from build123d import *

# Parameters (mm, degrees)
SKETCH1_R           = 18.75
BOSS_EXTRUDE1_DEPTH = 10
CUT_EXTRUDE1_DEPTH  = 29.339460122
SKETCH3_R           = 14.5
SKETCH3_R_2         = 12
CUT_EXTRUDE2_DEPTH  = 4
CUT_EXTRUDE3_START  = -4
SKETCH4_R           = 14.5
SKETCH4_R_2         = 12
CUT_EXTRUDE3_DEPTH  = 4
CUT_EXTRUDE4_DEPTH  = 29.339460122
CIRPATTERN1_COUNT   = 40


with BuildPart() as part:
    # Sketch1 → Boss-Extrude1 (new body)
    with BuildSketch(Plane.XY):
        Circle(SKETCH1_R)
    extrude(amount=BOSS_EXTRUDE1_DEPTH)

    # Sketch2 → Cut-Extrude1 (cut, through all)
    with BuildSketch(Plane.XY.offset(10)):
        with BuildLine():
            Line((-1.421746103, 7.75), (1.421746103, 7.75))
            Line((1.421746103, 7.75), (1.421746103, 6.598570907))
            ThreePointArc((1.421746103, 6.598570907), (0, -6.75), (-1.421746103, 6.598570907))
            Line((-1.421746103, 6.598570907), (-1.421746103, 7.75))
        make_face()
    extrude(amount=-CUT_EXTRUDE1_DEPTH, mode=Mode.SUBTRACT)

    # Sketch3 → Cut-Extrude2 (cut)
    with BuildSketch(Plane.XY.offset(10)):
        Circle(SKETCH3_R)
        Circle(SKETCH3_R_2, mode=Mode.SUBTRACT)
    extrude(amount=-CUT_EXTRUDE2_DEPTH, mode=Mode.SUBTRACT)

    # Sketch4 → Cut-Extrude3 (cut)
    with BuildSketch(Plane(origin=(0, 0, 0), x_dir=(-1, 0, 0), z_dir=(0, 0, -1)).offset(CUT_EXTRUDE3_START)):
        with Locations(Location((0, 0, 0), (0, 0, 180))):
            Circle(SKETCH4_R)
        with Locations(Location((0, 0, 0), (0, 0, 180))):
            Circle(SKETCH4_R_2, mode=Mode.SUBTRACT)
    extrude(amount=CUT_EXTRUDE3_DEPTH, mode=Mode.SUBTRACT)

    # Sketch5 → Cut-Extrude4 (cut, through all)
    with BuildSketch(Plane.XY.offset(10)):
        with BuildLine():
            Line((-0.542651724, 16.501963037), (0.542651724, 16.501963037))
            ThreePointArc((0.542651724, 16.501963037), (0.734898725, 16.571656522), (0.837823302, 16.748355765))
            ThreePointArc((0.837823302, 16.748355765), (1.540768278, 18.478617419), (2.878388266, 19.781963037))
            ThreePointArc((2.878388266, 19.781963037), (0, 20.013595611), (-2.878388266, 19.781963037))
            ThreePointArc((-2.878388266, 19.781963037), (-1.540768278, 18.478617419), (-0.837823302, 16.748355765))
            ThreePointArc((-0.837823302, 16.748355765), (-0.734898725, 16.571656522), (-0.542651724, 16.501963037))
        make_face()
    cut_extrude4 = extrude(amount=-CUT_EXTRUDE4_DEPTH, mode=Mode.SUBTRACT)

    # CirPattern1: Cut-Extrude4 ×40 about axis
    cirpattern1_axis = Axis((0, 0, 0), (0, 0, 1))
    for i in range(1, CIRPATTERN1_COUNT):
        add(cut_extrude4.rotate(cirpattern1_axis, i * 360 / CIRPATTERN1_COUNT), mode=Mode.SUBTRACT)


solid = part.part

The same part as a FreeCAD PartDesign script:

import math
import FreeCAD as App
import Part
import Sketcher
Q = App.Units.Quantity

doc = App.newDocument("Part")
body = doc.addObject("PartDesign::Body", "Body")

sketch1 = doc.addObject("Sketcher::SketchObject", "Sketch")
body.addObject(sketch1)
sketch1.AttachmentSupport = (doc.XY_Plane, [""])
sketch1.MapMode = "FlatFace"
sketch1.addGeometry(Part.Circle(App.Vector(0, 0, 0), App.Vector(0, 0, 1), 19), False)
sketch1.addConstraint(Sketcher.Constraint("Coincident", 0, 3, -1, 1))
sketch1.addConstraint(Sketcher.Constraint("Diameter", 0, Q("37.5 mm")))
pad1 = doc.addObject("PartDesign::Pad", "Pad")
body.addObject(pad1)
pad1.Profile = sketch1
pad1.Length = 10

sketch2 = doc.addObject("Sketcher::SketchObject", "Sketch001")
body.addObject(sketch2)
sketch2.AttachmentSupport = (doc.XY_Plane, [""])
sketch2.MapMode = "FlatFace"
sketch2.AttachmentOffset = App.Placement(App.Vector(0, 0, 10), App.Rotation())
sketch2.addGeometry(Part.LineSegment(App.Vector(1.4, 7.8, 0), App.Vector(-1.4, 7.8, 0)), False)
sketch2.addGeometry(Part.LineSegment(App.Vector(-1.4, 7.8, 0), App.Vector(-1.4, 6.6, 0)), False)
sketch2.addGeometry(Part.ArcOfCircle(Part.Circle(App.Vector(0, 0, 0), App.Vector(0, 0, 1), 6.8), math.radians(102), math.radians(438)), False)
sketch2.addGeometry(Part.LineSegment(App.Vector(1.4, 6.6, 0), App.Vector(1.4, 7.8, 0)), False)
sketch2.addConstraint(Sketcher.Constraint("Coincident", 0, 2, 1, 1))
sketch2.addConstraint(Sketcher.Constraint("Coincident", 1, 2, 2, 1))
sketch2.addConstraint(Sketcher.Constraint("Coincident", 2, 2, 3, 1))
sketch2.addConstraint(Sketcher.Constraint("Coincident", 3, 2, 0, 1))
sketch2.addConstraint(Sketcher.Constraint("Horizontal", 0))
sketch2.addConstraint(Sketcher.Constraint("Vertical", 1))
sketch2.addConstraint(Sketcher.Constraint("Vertical", 3))
sketch2.addConstraint(Sketcher.Constraint("Coincident", 2, 3, -1, 1))
sketch2.addConstraint(Sketcher.Constraint("Horizontal", 1, 2, 2, 2))
sketch2.addConstraint(Sketcher.Constraint("Radius", 2, Q("6.75 mm")))
sketch2.addConstraint(Sketcher.Constraint("DistanceY", -1, 1, 0, 2, Q("7.75 mm")))
sketch2.addConstraint(Sketcher.Constraint("DistanceY", 1, 2, 1, 1, Q("1.151429 mm")))
pocket1 = doc.addObject("PartDesign::Pocket", "Pocket")
body.addObject(pocket1)
pocket1.Profile = sketch2
pocket1.Type = "ThroughAll"

sketch3 = doc.addObject("Sketcher::SketchObject", "Sketch002")
body.addObject(sketch3)
sketch3.AttachmentSupport = (doc.XY_Plane, [""])
sketch3.MapMode = "FlatFace"
sketch3.AttachmentOffset = App.Placement(App.Vector(0, 0, 10), App.Rotation())
sketch3.addGeometry(Part.Circle(App.Vector(0, 0, 0), App.Vector(0, 0, 1), 14), False)
sketch3.addGeometry(Part.Circle(App.Vector(0, 0, 0), App.Vector(0, 0, 1), 12), False)
sketch3.addConstraint(Sketcher.Constraint("Coincident", 0, 3, -1, 1))
sketch3.addConstraint(Sketcher.Constraint("Coincident", 1, 3, -1, 1))
sketch3.addConstraint(Sketcher.Constraint("Diameter", 0, Q("29 mm")))
sketch3.addConstraint(Sketcher.Constraint("Diameter", 1, Q("24 mm")))
pocket2 = doc.addObject("PartDesign::Pocket", "Pocket001")
body.addObject(pocket2)
pocket2.Profile = sketch3
pocket2.Length = 4

sketch4 = doc.addObject("Sketcher::SketchObject", "Sketch003")
body.addObject(sketch4)
sketch4.AttachmentSupport = (doc.XY_Plane, [""])
sketch4.MapMode = "FlatFace"
sketch4.AttachmentOffset = App.Placement(App.Vector(0, 0, 4), App.Rotation())
sketch4.addGeometry(Part.Circle(App.Vector(0, 0, 0), App.Vector(0, 0, 1), 14), False)
sketch4.addGeometry(Part.Circle(App.Vector(0, 0, 0), App.Vector(0, 0, 1), 12), False)
sketch4.addConstraint(Sketcher.Constraint("Coincident", 0, 3, -1, 1))
sketch4.addConstraint(Sketcher.Constraint("Coincident", 1, 3, -1, 1))
sketch4.addConstraint(Sketcher.Constraint("Diameter", 0, Q("29 mm")))
sketch4.addConstraint(Sketcher.Constraint("Diameter", 1, Q("24 mm")))
pocket3 = doc.addObject("PartDesign::Pocket", "Pocket002")
body.addObject(pocket3)
pocket3.Profile = sketch4
pocket3.Length = 4

sketch5 = doc.addObject("Sketcher::SketchObject", "Sketch004")
body.addObject(sketch5)
sketch5.AttachmentSupport = (doc.XY_Plane, [""])
sketch5.MapMode = "FlatFace"
sketch5.AttachmentOffset = App.Placement(App.Vector(0, 0, 10), App.Rotation())
sketch5.addGeometry(Part.LineSegment(App.Vector(-0.54, 16.5, 0), App.Vector(0.54, 16.5, 0)), False)
sketch5.addGeometry(Part.ArcOfCircle(Part.Circle(App.Vector(0.54, 16.8, 0), App.Vector(0, 0, 1), 0.3), math.radians(-90), math.radians(-10)), False)
sketch5.addGeometry(Part.ArcOfCircle(Part.Circle(App.Vector(5.32, 15.93, 0), App.Vector(0, 0, 1), 4.56), math.radians(122), math.radians(170)), False)
sketch5.addGeometry(Part.ArcOfCircle(Part.Circle(App.Vector(0, 2.01, 0), App.Vector(0, 0, 1), 18), math.radians(80.8), math.radians(99.2)), False)
sketch5.addGeometry(Part.ArcOfCircle(Part.Circle(App.Vector(-5.32, 15.93, 0), App.Vector(0, 0, 1), 4.56), math.radians(10), math.radians(58)), False)
sketch5.addGeometry(Part.ArcOfCircle(Part.Circle(App.Vector(-0.54, 16.8, 0), App.Vector(0, 0, 1), 0.3), math.radians(-170), math.radians(-90)), False)
sketch5.addConstraint(Sketcher.Constraint("Tangent", 0, 2, 1, 1))
sketch5.addConstraint(Sketcher.Constraint("Tangent", 1, 2, 2, 2))
sketch5.addConstraint(Sketcher.Constraint("Coincident", 2, 1, 3, 1))
sketch5.addConstraint(Sketcher.Constraint("Coincident", 3, 2, 4, 2))
sketch5.addConstraint(Sketcher.Constraint("Tangent", 4, 1, 5, 1))
sketch5.addConstraint(Sketcher.Constraint("Tangent", 5, 2, 0, 1))
sketch5.addConstraint(Sketcher.Constraint("Horizontal", 0))
sketch5.addConstraint(Sketcher.Constraint("Equal", 2, 4))
sketch5.addConstraint(Sketcher.Constraint("Equal", 1, 5))
sketch5.addConstraint(Sketcher.Constraint("Symmetric", 2, 3, 4, 3, -2))
sketch5.addConstraint(Sketcher.Constraint("PointOnObject", 3, 3, -2))
sketch5.addConstraint(Sketcher.Constraint("Radius", 3, Q("18 mm")))
sketch5.addConstraint(Sketcher.Constraint("Radius", 1, Q("0.3 mm")))
sketch5.addConstraint(Sketcher.Constraint("Radius", 2, Q("4.56 mm")))
sketch5.addConstraint(Sketcher.Constraint("DistanceY", 1, 3, 2, 1, Q("2.98 mm")))
sketch5.addConstraint(Sketcher.Constraint("DistanceX", 0, 1, 0, 2, Q("1.085303 mm")))
sketch5.addConstraint(Sketcher.Constraint("DistanceX", -1, 1, 2, 3, Q("5.324431 mm")))
sketch5.addConstraint(Sketcher.Constraint("DistanceY", -1, 1, 1, 3, Q("16.801963 mm")))
pocket4 = doc.addObject("PartDesign::Pocket", "Pocket003")
body.addObject(pocket4)
pocket4.Profile = sketch5
pocket4.Type = "ThroughAll"
doc.recompute()

polarpattern = doc.addObject("PartDesign::PolarPattern", "PolarPattern")
body.addObject(polarpattern)
polarpattern.Originals = [pocket4]
polarpattern.Axis = (doc.Z_Axis, [""])
polarpattern.Angle = 360
polarpattern.Occurrences = 40
body.Tip = polarpattern

doc.recompute()
